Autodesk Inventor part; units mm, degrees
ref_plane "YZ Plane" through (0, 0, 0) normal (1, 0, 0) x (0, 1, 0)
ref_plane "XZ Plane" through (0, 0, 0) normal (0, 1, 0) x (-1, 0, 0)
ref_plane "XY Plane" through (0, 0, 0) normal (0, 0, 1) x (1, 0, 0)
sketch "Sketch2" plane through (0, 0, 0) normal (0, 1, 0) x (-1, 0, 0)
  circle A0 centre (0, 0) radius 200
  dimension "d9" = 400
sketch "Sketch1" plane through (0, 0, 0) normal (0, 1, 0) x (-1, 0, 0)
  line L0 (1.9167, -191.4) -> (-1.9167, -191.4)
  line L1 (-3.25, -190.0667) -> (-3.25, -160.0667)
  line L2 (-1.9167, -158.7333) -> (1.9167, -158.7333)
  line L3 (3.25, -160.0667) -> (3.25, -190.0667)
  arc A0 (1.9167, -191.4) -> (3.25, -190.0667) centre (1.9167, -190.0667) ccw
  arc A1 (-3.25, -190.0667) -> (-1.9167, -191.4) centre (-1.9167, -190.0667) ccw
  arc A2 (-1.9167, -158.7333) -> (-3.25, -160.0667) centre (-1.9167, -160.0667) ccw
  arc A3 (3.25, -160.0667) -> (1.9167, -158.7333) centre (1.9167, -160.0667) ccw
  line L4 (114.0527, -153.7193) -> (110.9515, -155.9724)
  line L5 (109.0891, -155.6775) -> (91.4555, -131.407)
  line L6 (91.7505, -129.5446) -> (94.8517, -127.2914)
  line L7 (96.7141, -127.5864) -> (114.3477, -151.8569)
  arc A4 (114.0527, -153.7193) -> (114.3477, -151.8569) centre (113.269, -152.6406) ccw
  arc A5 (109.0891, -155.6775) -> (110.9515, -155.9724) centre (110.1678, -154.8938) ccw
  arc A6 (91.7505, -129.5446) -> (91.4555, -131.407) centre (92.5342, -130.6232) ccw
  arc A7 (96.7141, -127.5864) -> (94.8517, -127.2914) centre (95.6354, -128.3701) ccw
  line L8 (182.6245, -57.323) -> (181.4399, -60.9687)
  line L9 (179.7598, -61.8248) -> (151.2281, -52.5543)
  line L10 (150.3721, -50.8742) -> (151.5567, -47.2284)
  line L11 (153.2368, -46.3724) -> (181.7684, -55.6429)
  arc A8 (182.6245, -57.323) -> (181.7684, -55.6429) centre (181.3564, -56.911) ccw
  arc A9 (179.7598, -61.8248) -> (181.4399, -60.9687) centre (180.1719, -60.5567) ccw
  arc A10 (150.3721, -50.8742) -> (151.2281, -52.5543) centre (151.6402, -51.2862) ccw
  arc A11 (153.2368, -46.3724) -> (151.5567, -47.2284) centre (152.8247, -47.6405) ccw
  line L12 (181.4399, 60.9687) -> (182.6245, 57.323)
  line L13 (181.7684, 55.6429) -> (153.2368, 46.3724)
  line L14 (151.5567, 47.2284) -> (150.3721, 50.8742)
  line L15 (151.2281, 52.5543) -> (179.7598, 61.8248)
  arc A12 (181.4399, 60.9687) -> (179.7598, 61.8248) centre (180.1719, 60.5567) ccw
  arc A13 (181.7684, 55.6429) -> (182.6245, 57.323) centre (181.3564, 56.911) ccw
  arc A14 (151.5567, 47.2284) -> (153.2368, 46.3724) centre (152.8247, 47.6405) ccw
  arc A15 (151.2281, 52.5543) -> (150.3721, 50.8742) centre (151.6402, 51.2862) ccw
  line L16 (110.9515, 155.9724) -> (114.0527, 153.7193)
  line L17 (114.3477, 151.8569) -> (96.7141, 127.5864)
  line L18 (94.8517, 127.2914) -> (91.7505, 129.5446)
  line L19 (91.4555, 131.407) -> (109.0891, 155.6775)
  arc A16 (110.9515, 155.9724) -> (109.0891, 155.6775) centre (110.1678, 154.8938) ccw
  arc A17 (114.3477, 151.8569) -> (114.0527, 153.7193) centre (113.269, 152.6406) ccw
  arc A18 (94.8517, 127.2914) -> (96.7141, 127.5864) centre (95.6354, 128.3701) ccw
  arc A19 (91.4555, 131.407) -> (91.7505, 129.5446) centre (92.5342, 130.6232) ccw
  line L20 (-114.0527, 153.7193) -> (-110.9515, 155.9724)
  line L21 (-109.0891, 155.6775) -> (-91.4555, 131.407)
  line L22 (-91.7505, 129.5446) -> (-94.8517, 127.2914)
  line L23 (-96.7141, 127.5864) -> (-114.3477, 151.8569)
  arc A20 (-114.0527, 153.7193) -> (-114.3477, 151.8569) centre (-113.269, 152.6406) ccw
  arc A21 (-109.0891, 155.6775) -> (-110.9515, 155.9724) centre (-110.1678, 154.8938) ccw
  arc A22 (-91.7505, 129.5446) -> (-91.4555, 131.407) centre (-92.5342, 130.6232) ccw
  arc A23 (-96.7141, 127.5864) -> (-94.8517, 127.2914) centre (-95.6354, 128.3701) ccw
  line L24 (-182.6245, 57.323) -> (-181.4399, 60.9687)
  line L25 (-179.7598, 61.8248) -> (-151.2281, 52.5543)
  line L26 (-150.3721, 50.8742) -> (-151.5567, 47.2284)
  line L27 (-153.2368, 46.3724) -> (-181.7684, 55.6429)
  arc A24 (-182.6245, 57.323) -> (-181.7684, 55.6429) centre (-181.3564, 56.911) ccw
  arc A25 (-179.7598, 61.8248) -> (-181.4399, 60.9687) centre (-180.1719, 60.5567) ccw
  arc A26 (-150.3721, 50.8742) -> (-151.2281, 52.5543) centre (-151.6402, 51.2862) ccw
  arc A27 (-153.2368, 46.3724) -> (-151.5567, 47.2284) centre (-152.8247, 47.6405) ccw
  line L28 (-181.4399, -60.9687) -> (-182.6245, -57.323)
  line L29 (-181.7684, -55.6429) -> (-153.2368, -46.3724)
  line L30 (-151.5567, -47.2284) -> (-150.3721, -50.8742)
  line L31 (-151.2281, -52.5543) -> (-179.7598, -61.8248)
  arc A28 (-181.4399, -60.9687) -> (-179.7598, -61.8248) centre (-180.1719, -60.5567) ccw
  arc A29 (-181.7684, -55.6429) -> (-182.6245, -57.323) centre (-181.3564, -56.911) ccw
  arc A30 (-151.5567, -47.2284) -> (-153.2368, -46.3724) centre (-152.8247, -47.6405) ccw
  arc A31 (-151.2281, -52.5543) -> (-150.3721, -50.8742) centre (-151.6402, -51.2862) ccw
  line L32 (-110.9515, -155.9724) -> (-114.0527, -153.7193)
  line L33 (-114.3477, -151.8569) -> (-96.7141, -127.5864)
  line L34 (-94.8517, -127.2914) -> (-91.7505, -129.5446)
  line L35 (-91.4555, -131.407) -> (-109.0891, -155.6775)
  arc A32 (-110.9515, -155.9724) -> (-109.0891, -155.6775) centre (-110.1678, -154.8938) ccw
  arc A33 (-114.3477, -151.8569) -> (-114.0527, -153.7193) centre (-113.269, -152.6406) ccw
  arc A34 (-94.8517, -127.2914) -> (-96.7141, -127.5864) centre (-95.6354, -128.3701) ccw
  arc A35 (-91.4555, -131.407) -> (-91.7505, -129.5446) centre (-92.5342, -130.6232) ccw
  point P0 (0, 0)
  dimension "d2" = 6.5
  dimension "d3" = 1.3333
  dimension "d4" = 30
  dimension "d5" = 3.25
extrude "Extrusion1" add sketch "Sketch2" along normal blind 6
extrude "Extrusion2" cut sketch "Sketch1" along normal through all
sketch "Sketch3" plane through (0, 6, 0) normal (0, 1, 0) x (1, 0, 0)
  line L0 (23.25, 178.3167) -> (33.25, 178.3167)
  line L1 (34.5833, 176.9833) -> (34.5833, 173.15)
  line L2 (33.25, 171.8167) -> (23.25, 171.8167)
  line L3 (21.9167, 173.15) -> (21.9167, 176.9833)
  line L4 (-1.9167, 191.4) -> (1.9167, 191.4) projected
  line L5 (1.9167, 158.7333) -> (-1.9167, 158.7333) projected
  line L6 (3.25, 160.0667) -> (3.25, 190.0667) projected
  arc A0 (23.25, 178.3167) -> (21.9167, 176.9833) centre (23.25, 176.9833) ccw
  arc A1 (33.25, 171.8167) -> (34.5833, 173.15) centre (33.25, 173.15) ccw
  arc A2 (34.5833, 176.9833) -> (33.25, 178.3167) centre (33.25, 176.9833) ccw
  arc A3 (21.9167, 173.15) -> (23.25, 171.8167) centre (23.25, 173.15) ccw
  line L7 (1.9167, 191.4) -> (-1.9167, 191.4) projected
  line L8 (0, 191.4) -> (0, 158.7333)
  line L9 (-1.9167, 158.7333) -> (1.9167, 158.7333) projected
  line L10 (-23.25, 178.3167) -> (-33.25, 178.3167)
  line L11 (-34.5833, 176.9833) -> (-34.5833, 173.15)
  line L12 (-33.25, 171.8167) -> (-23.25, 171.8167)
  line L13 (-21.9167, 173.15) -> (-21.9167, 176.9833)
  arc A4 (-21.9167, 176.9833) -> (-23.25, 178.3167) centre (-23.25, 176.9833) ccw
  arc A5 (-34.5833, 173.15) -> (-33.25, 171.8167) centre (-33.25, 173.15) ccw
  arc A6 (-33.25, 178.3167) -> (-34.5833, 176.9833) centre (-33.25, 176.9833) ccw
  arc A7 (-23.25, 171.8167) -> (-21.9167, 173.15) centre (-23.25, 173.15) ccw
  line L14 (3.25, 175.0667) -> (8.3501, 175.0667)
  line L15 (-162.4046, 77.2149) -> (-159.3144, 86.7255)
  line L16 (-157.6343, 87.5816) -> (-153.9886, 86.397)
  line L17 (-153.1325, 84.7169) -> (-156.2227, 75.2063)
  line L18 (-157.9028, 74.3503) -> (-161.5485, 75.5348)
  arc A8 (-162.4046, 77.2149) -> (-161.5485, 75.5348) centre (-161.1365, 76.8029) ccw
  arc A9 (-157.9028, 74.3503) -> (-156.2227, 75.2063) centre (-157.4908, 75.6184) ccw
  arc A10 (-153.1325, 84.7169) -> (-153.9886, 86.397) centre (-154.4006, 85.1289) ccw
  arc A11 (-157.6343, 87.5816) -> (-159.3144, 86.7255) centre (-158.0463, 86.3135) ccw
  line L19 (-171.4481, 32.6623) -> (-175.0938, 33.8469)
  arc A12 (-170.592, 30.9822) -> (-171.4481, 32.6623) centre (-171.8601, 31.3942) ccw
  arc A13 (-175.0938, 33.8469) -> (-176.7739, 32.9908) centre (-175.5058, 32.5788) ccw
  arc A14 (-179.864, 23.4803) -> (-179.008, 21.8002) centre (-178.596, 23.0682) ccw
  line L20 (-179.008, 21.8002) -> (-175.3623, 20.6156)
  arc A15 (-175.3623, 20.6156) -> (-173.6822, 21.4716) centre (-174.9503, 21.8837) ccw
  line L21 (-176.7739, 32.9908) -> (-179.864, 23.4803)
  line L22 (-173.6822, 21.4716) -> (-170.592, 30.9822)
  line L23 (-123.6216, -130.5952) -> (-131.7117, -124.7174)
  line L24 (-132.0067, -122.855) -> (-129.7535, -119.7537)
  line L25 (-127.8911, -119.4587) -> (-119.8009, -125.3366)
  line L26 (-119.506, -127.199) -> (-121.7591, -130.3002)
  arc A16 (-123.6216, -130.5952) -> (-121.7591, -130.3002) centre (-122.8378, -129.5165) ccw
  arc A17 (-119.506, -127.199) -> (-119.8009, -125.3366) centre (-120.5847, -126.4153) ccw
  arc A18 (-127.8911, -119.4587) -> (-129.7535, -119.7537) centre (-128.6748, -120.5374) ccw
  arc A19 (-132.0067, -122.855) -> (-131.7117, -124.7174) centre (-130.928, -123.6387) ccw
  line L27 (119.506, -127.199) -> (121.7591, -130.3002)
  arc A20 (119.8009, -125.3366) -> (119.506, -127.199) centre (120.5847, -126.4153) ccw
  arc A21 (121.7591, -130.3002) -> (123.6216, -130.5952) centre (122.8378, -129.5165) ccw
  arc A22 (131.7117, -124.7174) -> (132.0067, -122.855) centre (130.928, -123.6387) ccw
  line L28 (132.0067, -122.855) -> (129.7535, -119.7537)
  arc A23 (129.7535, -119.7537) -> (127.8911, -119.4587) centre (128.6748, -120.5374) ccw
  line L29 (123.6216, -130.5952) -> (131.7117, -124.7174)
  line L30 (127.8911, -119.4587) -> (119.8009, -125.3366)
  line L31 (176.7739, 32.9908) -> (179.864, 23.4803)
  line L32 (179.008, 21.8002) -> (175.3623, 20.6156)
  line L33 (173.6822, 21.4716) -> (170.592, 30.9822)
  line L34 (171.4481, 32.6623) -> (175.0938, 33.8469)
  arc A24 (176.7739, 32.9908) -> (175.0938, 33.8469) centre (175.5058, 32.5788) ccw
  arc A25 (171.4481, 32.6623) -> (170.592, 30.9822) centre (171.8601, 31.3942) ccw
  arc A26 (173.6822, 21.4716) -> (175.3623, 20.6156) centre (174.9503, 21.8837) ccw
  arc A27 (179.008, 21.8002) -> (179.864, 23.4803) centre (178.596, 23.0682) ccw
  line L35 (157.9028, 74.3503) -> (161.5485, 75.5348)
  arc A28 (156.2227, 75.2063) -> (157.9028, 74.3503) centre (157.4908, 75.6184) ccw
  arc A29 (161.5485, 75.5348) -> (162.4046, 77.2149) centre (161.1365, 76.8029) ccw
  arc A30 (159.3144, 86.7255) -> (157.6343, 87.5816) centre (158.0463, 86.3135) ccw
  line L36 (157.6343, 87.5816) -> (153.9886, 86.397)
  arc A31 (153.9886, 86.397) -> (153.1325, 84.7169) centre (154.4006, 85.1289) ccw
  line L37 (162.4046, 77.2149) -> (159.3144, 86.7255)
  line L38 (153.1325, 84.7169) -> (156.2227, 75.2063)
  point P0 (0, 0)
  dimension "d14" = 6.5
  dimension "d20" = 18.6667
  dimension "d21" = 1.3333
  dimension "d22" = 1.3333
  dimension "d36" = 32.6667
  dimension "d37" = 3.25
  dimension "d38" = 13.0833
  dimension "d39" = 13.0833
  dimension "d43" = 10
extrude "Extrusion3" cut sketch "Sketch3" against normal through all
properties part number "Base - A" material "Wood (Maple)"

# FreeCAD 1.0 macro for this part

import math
import FreeCAD as App
import Part
import Sketcher
from FreeCAD import Vector
Q = App.Units.Quantity

doc = App.newDocument("Part")
body = doc.addObject("PartDesign::Body", "Body")

sketch1 = doc.addObject("Sketcher::SketchObject", "Sketch")
body.addObject(sketch1)
sketch1.AttachmentSupport = (doc.XZ_Plane, [""])
sketch1.MapMode = "FlatFace"
sketch1.addGeometry(Part.Circle(Vector(0, 0, 0), Vector(0, 0, 1), 200), False)
sketch1.addConstraint([
    Sketcher.Constraint("Coincident", 0, 3, -1, 1),
    Sketcher.Constraint("Diameter", 0, Q("400 mm")),
])
pad1 = doc.addObject("PartDesign::Pad", "Pad")
body.addObject(pad1)
pad1.Profile = sketch1
pad1.Length = 6
pad1.Reversed = True

sketch2 = doc.addObject("Sketcher::SketchObject", "Sketch001")
body.addObject(sketch2)
sketch2.AttachmentSupport = (doc.XZ_Plane, [""])
sketch2.MapMode = "FlatFace"
sketch2.addGeometry([
    Part.LineSegment(Vector(1.9, -191.4, 0), Vector(-1.9, -191.4, 0)),
    Part.ArcOfCircle(Part.Circle(Vector(-1.9, -190.1, 0), Vector(0, 0, 1), 1.3), math.radians(180), math.radians(270)),
    Part.LineSegment(Vector(-3.2, -190.1, 0), Vector(-3.2, -160.1, 0)),
    Part.ArcOfCircle(Part.Circle(Vector(-1.9, -160.1, 0), Vector(0, 0, 1), 1.3), math.radians(90), math.radians(180)),
    Part.LineSegment(Vector(-1.9, -158.7, 0), Vector(1.9, -158.7, 0)),
    Part.ArcOfCircle(Part.Circle(Vector(1.9, -160.1, 0), Vector(0, 0, 1), 1.3), math.radians(0), math.radians(90)),
    Part.LineSegment(Vector(3.2, -160.1, 0), Vector(3.2, -190.1, 0)),
    Part.ArcOfCircle(Part.Circle(Vector(1.9, -190.1, 0), Vector(0, 0, 1), 1.3), math.radians(-90), math.radians(0)),
    Part.LineSegment(Vector(-111, -156, 0), Vector(-114.1, -153.7, 0)),
    Part.ArcOfCircle(Part.Circle(Vector(-113.3, -152.6, 0), Vector(0, 0, 1), 1.3), math.radians(144), math.radians(234)),
    Part.LineSegment(Vector(-114.3, -151.9, 0), Vector(-96.7, -127.6, 0)),
    Part.ArcOfCircle(Part.Circle(Vector(-95.6, -128.4, 0), Vector(0, 0, 1), 1.3), math.radians(54), math.radians(144)),
    Part.LineSegment(Vector(-94.9, -127.3, 0), Vector(-91.8, -129.5, 0)),
    Part.ArcOfCircle(Part.Circle(Vector(-92.5, -130.6, 0), Vector(0, 0, 1), 1.3), math.radians(-36), math.radians(54)),
    Part.LineSegment(Vector(-91.5, -131.4, 0), Vector(-109.1, -155.7, 0)),
    Part.ArcOfCircle(Part.Circle(Vector(-110.2, -154.9, 0), Vector(0, 0, 1), 1.3), math.radians(-126), math.radians(-36)),
    Part.LineSegment(Vector(-181.4, -61, 0), Vector(-182.6, -57.3, 0)),
    Part.ArcOfCircle(Part.Circle(Vector(-181.4, -56.9, 0), Vector(0, 0, 1), 1.3), math.radians(108), math.radians(198)),
    Part.LineSegment(Vector(-181.8, -55.6, 0), Vector(-153.2, -46.4, 0)),
    Part.ArcOfCircle(Part.Circle(Vector(-152.8, -47.6, 0), Vector(0, 0, 1), 1.3), math.radians(18), math.radians(108)),
    Part.LineSegment(Vector(-151.6, -47.2, 0), Vector(-150.4, -50.9, 0)),
    Part.ArcOfCircle(Part.Circle(Vector(-151.6, -51.3, 0), Vector(0, 0, 1), 1.3), math.radians(-72), math.radians(18)),
    Part.LineSegment(Vector(-151.2, -52.6, 0), Vector(-179.8, -61.8, 0)),
    Part.ArcOfCircle(Part.Circle(Vector(-180.2, -60.6, 0), Vector(0, 0, 1), 1.3), math.radians(-162), math.radians(-72)),
    Part.LineSegment(Vector(-182.6, 57.3, 0), Vector(-181.4, 61, 0)),
    Part.ArcOfCircle(Part.Circle(Vector(-180.2, 60.6, 0), Vector(0, 0, 1), 1.3), math.radians(72), math.radians(162)),
    Part.LineSegment(Vector(-179.8, 61.8, 0), Vector(-151.2, 52.6, 0)),
    Part.ArcOfCircle(Part.Circle(Vector(-151.6, 51.3, 0), Vector(0, 0, 1), 1.3), math.radians(-18), math.radians(72)),
    Part.LineSegment(Vector(-150.4, 50.9, 0), Vector(-151.6, 47.2, 0)),
    Part.ArcOfCircle(Part.Circle(Vector(-152.8, 47.6, 0), Vector(0, 0, 1), 1.3), math.radians(-108), math.radians(-18)),
    Part.LineSegment(Vector(-153.2, 46.4, 0), Vector(-181.8, 55.6, 0)),
    Part.ArcOfCircle(Part.Circle(Vector(-181.4, 56.9, 0), Vector(0, 0, 1), 1.3), math.radians(162), math.radians(252)),
    Part.LineSegment(Vector(-114.1, 153.7, 0), Vector(-111, 156, 0)),
    Part.ArcOfCircle(Part.Circle(Vector(-110.2, 154.9, 0), Vector(0, 0, 1), 1.3), math.radians(36), math.radians(126)),
    Part.LineSegment(Vector(-109.1, 155.7, 0), Vector(-91.5, 131.4, 0)),
    Part.ArcOfCircle(Part.Circle(Vector(-92.5, 130.6, 0), Vector(0, 0, 1), 1.3), math.radians(-54), math.radians(36)),
    Part.LineSegment(Vector(-91.8, 129.5, 0), Vector(-94.9, 127.3, 0)),
    Part.ArcOfCircle(Part.Circle(Vector(-95.6, 128.4, 0), Vector(0, 0, 1), 1.3), math.radians(-144), math.radians(-54)),
    Part.LineSegment(Vector(-96.7, 127.6, 0), Vector(-114.3, 151.9, 0)),
    Part.ArcOfCircle(Part.Circle(Vector(-113.3, 152.6, 0), Vector(0, 0, 1), 1.3), math.radians(126), math.radians(216)),
    Part.LineSegment(Vector(111, 156, 0), Vector(114.1, 153.7, 0)),
    Part.ArcOfCircle(Part.Circle(Vector(113.3, 152.6, 0), Vector(0, 0, 1), 1.3), math.radians(-36), math.radians(54)),
    Part.LineSegment(Vector(114.3, 151.9, 0), Vector(96.7, 127.6, 0)),
    Part.ArcOfCircle(Part.Circle(Vector(95.6, 128.4, 0), Vector(0, 0, 1), 1.3), math.radians(-126), math.radians(-36)),
    Part.LineSegment(Vector(94.9, 127.3, 0), Vector(91.8, 129.5, 0)),
    Part.ArcOfCircle(Part.Circle(Vector(92.5, 130.6, 0), Vector(0, 0, 1), 1.3), math.radians(144), math.radians(234)),
    Part.LineSegment(Vector(91.5, 131.4, 0), Vector(109.1, 155.7, 0)),
    Part.ArcOfCircle(Part.Circle(Vector(110.2, 154.9, 0), Vector(0, 0, 1), 1.3), math.radians(54), math.radians(144)),
    Part.LineSegment(Vector(181.4, 61, 0), Vector(182.6, 57.3, 0)),
    Part.ArcOfCircle(Part.Circle(Vector(181.4, 56.9, 0), Vector(0, 0, 1), 1.3), math.radians(-72), math.radians(18)),
    Part.LineSegment(Vector(181.8, 55.6, 0), Vector(153.2, 46.4, 0)),
    Part.ArcOfCircle(Part.Circle(Vector(152.8, 47.6, 0), Vector(0, 0, 1), 1.3), math.radians(-162), math.radians(-72)),
    Part.LineSegment(Vector(151.6, 47.2, 0), Vector(150.4, 50.9, 0)),
    Part.ArcOfCircle(Part.Circle(Vector(151.6, 51.3, 0), Vector(0, 0, 1), 1.3), math.radians(108), math.radians(198)),
    Part.LineSegment(Vector(151.2, 52.6, 0), Vector(179.8, 61.8, 0)),
    Part.ArcOfCircle(Part.Circle(Vector(180.2, 60.6, 0), Vector(0, 0, 1), 1.3), math.radians(18), math.radians(108)),
    Part.LineSegment(Vector(182.6, -57.3, 0), Vector(181.4, -61, 0)),
    Part.ArcOfCircle(Part.Circle(Vector(180.2, -60.6, 0), Vector(0, 0, 1), 1.3), math.radians(-108), math.radians(-18)),
    Part.LineSegment(Vector(179.8, -61.8, 0), Vector(151.2, -52.6, 0)),
    Part.ArcOfCircle(Part.Circle(Vector(151.6, -51.3, 0), Vector(0, 0, 1), 1.3), math.radians(162), math.radians(252)),
    Part.LineSegment(Vector(150.4, -50.9, 0), Vector(151.6, -47.2, 0)),
    Part.ArcOfCircle(Part.Circle(Vector(152.8, -47.6, 0), Vector(0, 0, 1), 1.3), math.radians(72), math.radians(162)),
    Part.LineSegment(Vector(153.2, -46.4, 0), Vector(181.8, -55.6, 0)),
    Part.ArcOfCircle(Part.Circle(Vector(181.4, -56.9, 0), Vector(0, 0, 1), 1.3), math.radians(-18), math.radians(72)),
    Part.LineSegment(Vector(114.1, -153.7, 0), Vector(111, -156, 0)),
    Part.ArcOfCircle(Part.Circle(Vector(110.2, -154.9, 0), Vector(0, 0, 1), 1.3), math.radians(-144), math.radians(-54)),
    Part.LineSegment(Vector(109.1, -155.7, 0), Vector(91.5, -131.4, 0)),
    Part.ArcOfCircle(Part.Circle(Vector(92.5, -130.6, 0), Vector(0, 0, 1), 1.3), math.radians(126), math.radians(216)),
    Part.LineSegment(Vector(91.8, -129.5, 0), Vector(94.9, -127.3, 0)),
    Part.ArcOfCircle(Part.Circle(Vector(95.6, -128.4, 0), Vector(0, 0, 1), 1.3), math.radians(36), math.radians(126)),
    Part.LineSegment(Vector(96.7, -127.6, 0), Vector(114.3, -151.9, 0)),
    Part.ArcOfCircle(Part.Circle(Vector(113.3, -152.6, 0), Vector(0, 0, 1), 1.3), math.radians(-54), math.radians(36)),
], False)
sketch2.addConstraint([
    Sketcher.Constraint("Tangent", 0, 2, 1, 2),
    Sketcher.Constraint("Tangent", 1, 1, 2, 1),
    Sketcher.Constraint("Tangent", 2, 2, 3, 2),
    Sketcher.Constraint("Tangent", 3, 1, 4, 1),
    Sketcher.Constraint("Tangent", 4, 2, 5, 2),
    Sketcher.Constraint("Tangent", 5, 1, 6, 1),
    Sketcher.Constraint("Tangent", 6, 2, 7, 2),
    Sketcher.Constraint("Tangent", 7, 1, 0, 1),
    Sketcher.Constraint("Tangent", 8, 2, 9, 2),
    Sketcher.Constraint("Tangent", 9, 1, 10, 1),
    Sketcher.Constraint("Tangent", 10, 2, 11, 2),
    Sketcher.Constraint("Tangent", 11, 1, 12, 1),
    Sketcher.Constraint("Tangent", 12, 2, 13, 2),
    Sketcher.Constraint("Tangent", 13, 1, 14, 1),
    Sketcher.Constraint("Tangent", 14, 2, 15, 2),
    Sketcher.Constraint("Tangent", 15, 1, 8, 1),
    Sketcher.Constraint("Tangent", 16, 2, 17, 2),
    Sketcher.Constraint("Tangent", 17, 1, 18, 1),
    Sketcher.Constraint("Tangent", 18, 2, 19, 2),
    Sketcher.Constraint("Tangent", 19, 1, 20, 1),
    Sketcher.Constraint("Tangent", 20, 2, 21, 2),
    Sketcher.Constraint("Tangent", 21, 1, 22, 1),
    Sketcher.Constraint("Tangent", 22, 2, 23, 2),
    Sketcher.Constraint("Tangent", 23, 1, 16, 1),
    Sketcher.Constraint("Tangent", 24, 2, 25, 2),
    Sketcher.Constraint("Tangent", 25, 1, 26, 1),
    Sketcher.Constraint("Tangent", 26, 2, 27, 2),
    Sketcher.Constraint("Tangent", 27, 1, 28, 1),
    Sketcher.Constraint("Tangent", 28, 2, 29, 2),
    Sketcher.Constraint("Tangent", 29, 1, 30, 1),
    Sketcher.Constraint("Tangent", 30, 2, 31, 2),
    Sketcher.Constraint("Tangent", 31, 1, 24, 1),
    Sketcher.Constraint("Tangent", 32, 2, 33, 2),
    Sketcher.Constraint("Tangent", 33, 1, 34, 1),
    Sketcher.Constraint("Tangent", 34, 2, 35, 2),
    Sketcher.Constraint("Tangent", 35, 1, 36, 1),
    Sketcher.Constraint("Tangent", 36, 2, 37, 2),
    Sketcher.Constraint("Tangent", 37, 1, 38, 1),
    Sketcher.Constraint("Tangent", 38, 2, 39, 2),
    Sketcher.Constraint("Tangent", 39, 1, 32, 1),
    Sketcher.Constraint("Tangent", 40, 2, 41, 2),
    Sketcher.Constraint("Tangent", 41, 1, 42, 1),
    Sketcher.Constraint("Tangent", 42, 2, 43, 2),
    Sketcher.Constraint("Tangent", 43, 1, 44, 1),
    Sketcher.Constraint("Tangent", 44, 2, 45, 2),
    Sketcher.Constraint("Tangent", 45, 1, 46, 1),
    Sketcher.Constraint("Tangent", 46, 2, 47, 2),
    Sketcher.Constraint("Tangent", 47, 1, 40, 1),
    Sketcher.Constraint("Tangent", 48, 2, 49, 2),
    Sketcher.Constraint("Tangent", 49, 1, 50, 1),
    Sketcher.Constraint("Tangent", 50, 2, 51, 2),
    Sketcher.Constraint("Tangent", 51, 1, 52, 1),
    Sketcher.Constraint("Tangent", 52, 2, 53, 2),
    Sketcher.Constraint("Tangent", 53, 1, 54, 1),
    Sketcher.Constraint("Tangent", 54, 2, 55, 2),
    Sketcher.Constraint("Tangent", 55, 1, 48, 1),
    Sketcher.Constraint("Tangent", 56, 2, 57, 2),
    Sketcher.Constraint("Tangent", 57, 1, 58, 1),
    Sketcher.Constraint("Tangent", 58, 2, 59, 2),
    Sketcher.Constraint("Tangent", 59, 1, 60, 1),
    Sketcher.Constraint("Tangent", 60, 2, 61, 2),
    Sketcher.Constraint("Tangent", 61, 1, 62, 1),
    Sketcher.Constraint("Tangent", 62, 2, 63, 2),
    Sketcher.Constraint("Tangent", 63, 1, 56, 1),
    Sketcher.Constraint("Tangent", 64, 2, 65, 2),
    Sketcher.Constraint("Tangent", 65, 1, 66, 1),
    Sketcher.Constraint("Tangent", 66, 2, 67, 2),
    Sketcher.Constraint("Tangent", 67, 1, 68, 1),
    Sketcher.Constraint("Tangent", 68, 2, 69, 2),
    Sketcher.Constraint("Tangent", 69, 1, 70, 1),
    Sketcher.Constraint("Tangent", 70, 2, 71, 2),
    Sketcher.Constraint("Tangent", 71, 1, 64, 1),
    Sketcher.Constraint("Horizontal", 0),
    Sketcher.Constraint("Vertical", 2),
    Sketcher.Constraint("Horizontal", 4),
    Sketcher.Constraint("Vertical", 6),
    Sketcher.Constraint("Equal", 1, 3),
    Sketcher.Constraint("Equal", 3, 5),
    Sketcher.Constraint("Equal", 5, 7),
    Sketcher.Constraint("Equal", 7, 9),
    Sketcher.Constraint("Equal", 9, 11),
    Sketcher.Constraint("Equal", 11, 13),
    Sketcher.Constraint("Equal", 13, 15),
    Sketcher.Constraint("Equal", 15, 17),
    Sketcher.Constraint("Equal", 17, 19),
    Sketcher.Constraint("Equal", 19, 21),
    Sketcher.Constraint("Equal", 21, 23),
    Sketcher.Constraint("Equal", 23, 25),
    Sketcher.Constraint("Equal", 25, 27),
    Sketcher.Constraint("Equal", 27, 29),
    Sketcher.Constraint("Equal", 29, 31),
    Sketcher.Constraint("Equal", 31, 33),
    Sketcher.Constraint("Equal", 33, 35),
    Sketcher.Constraint("Equal", 35, 37),
    Sketcher.Constraint("Equal", 37, 39),
    Sketcher.Constraint("Equal", 39, 41),
    Sketcher.Constraint("Equal", 41, 43),
    Sketcher.Constraint("Equal", 43, 45),
    Sketcher.Constraint("Equal", 45, 47),
    Sketcher.Constraint("Equal", 47, 49),
    Sketcher.Constraint("Equal", 49, 51),
    Sketcher.Constraint("Equal", 51, 53),
    Sketcher.Constraint("Equal", 53, 55),
    Sketcher.Constraint("Equal", 55, 57),
    Sketcher.Constraint("Equal", 57, 59),
    Sketcher.Constraint("Equal", 59, 61),
    Sketcher.Constraint("Equal", 61, 63),
    Sketcher.Constraint("Equal", 63, 65),
    Sketcher.Constraint("Equal", 65, 67),
    Sketcher.Constraint("Equal", 67, 69),
    Sketcher.Constraint("Equal", 69, 71),
    Sketcher.Constraint("Symmetric", 9, 3, 41, 3, -1, 1),
    Sketcher.Constraint("Symmetric", 11, 3, 43, 3, -1, 1),
    Sketcher.Constraint("Symmetric", 13, 3, 45, 3, -1, 1),
    Sketcher.Constraint("Symmetric", 15, 3, 47, 3, -1, 1),
    Sketcher.Constraint("Symmetric", 17, 3, 49, 3, -1, 1),
    Sketcher.Constraint("Symmetric", 19, 3, 51, 3, -1, 1),
    Sketcher.Constraint("Symmetric", 21, 3, 53, 3, -1, 1),
    Sketcher.Constraint("Symmetric", 23, 3, 55, 3, -1, 1),
    Sketcher.Constraint("Symmetric", 25, 3, 57, 3, -1, 1),
    Sketcher.Constraint("Symmetric", 27, 3, 59, 3, -1, 1),
    Sketcher.Constraint("Symmetric", 29, 3, 61, 3, -1, 1),
    Sketcher.Constraint("Symmetric", 31, 3, 63, 3, -1, 1),
    Sketcher.Constraint("Symmetric", 33, 3, 65, 3, -1, 1),
    Sketcher.Constraint("Symmetric", 35, 3, 67, 3, -1, 1),
    Sketcher.Constraint("Symmetric", 37, 3, 69, 3, -1, 1),
    Sketcher.Constraint("Symmetric", 39, 3, 71, 3, -1, 1),
    Sketcher.Constraint("Symmetric", 39, 3, 41, 3, -2),
    Sketcher.Constraint("Symmetric", 37, 3, 43, 3, -2),
    Sketcher.Constraint("Symmetric", 35, 3, 45, 3, -2),
    Sketcher.Constraint("Symmetric", 33, 3, 47, 3, -2),
    Sketcher.Constraint("Symmetric", 31, 3, 49, 3, -2),
    Sketcher.Constraint("Symmetric", 29, 3, 51, 3, -2),
    Sketcher.Constraint("Symmetric", 27, 3, 53, 3, -2),
    Sketcher.Constraint("Symmetric", 25, 3, 55, 3, -2),
    Sketcher.Constraint("Perpendicular", 8, 10),
    Sketcher.Constraint("Perpendicular", 10, 12),
    Sketcher.Constraint("Perpendicular", 12, 14),
    Sketcher.Constraint("Perpendicular", 16, 18),
    Sketcher.Constraint("Perpendicular", 18, 20),
    Sketcher.Constraint("Perpendicular", 20, 22),
    Sketcher.Constraint("Equal", 12, 16),
    Sketcher.Constraint("Equal", 14, 18),
    Sketcher.Constraint("Radius", 1, Q("0.0525 in")),
    Sketcher.Constraint("DistanceY", 2, 1, 2, 2, Q("1.1811 in")),
    Sketcher.Constraint("Angle", 8, Q("144.0006 deg")),
    Sketcher.Constraint("Angle", 16, Q("108.0006 deg")),
    Sketcher.Constraint("Distance", 10, Q("1.1811 in")),
    Sketcher.Constraint("DistanceX", 1, 1, -1, 1, Q("3.25 mm")),
    Sketcher.Constraint("DistanceX", -1, 1, 5, 1, Q("3.25 mm")),
    Sketcher.Constraint("DistanceX", 9, 3, -1, 1, Q("4.4594 in")),
    Sketcher.Constraint("DistanceY", 17, 3, -1, 1, Q("2.2406 in")),
    Sketcher.Constraint("DistanceY", 13, 1, -1, 1, Q("5.1735 in")),
    Sketcher.Constraint("DistanceX", 19, 1, -1, 1, Q("5.9668 in")),
    Sketcher.Constraint("DistanceX", 23, 1, -1, 1, Q("7.1433 in")),
    Sketcher.Constraint("DistanceY", 1, 3, -1, 1, Q("190.0667 mm")),
])
pocket1 = doc.addObject("PartDesign::Pocket", "Pocket")
body.addObject(pocket1)
pocket1.Profile = sketch2
pocket1.Type = "ThroughAll"

sketch3 = doc.addObject("Sketcher::SketchObject", "Sketch002")
body.addObject(sketch3)
sketch3.AttachmentSupport = (doc.XZ_Plane, [""])
sketch3.MapMode = "FlatFace"
sketch3.AttachmentOffset = App.Placement(Vector(0, 0, -6), App.Rotation())
sketch3.addGeometry([
    Part.LineSegment(Vector(33.2, -178.3, 0), Vector(23.2, -178.3, 0)),
    Part.ArcOfCircle(Part.Circle(Vector(23.2, -177, 0), Vector(0, 0, 1), 1.3), math.radians(180), math.radians(270)),
    Part.LineSegment(Vector(21.9, -177, 0), Vector(21.9, -173.2, 0)),
    Part.ArcOfCircle(Part.Circle(Vector(23.2, -173.2, 0), Vector(0, 0, 1), 1.3), math.radians(90), math.radians(180)),
    Part.LineSegment(Vector(23.2, -171.8, 0), Vector(33.2, -171.8, 0)),
    Part.ArcOfCircle(Part.Circle(Vector(33.2, -173.2, 0), Vector(0, 0, 1), 1.3), math.radians(0), math.radians(90)),
    Part.LineSegment(Vector(34.6, -173.2, 0), Vector(34.6, -177, 0)),
    Part.ArcOfCircle(Part.Circle(Vector(33.2, -177, 0), Vector(0, 0, 1), 1.3), math.radians(-90), math.radians(0)),
    Part.ArcOfCircle(Part.Circle(Vector(-23.2, -177, 0), Vector(0, 0, 1), 1.3), math.radians(-90), math.radians(0)),
    Part.LineSegment(Vector(-23.2, -178.3, 0), Vector(-33.2, -178.3, 0)),
    Part.ArcOfCircle(Part.Circle(Vector(-33.2, -177, 0), Vector(0, 0, 1), 1.3), math.radians(180), math.radians(270)),
    Part.LineSegment(Vector(-34.6, -177, 0), Vector(-34.6, -173.2, 0)),
    Part.ArcOfCircle(Part.Circle(Vector(-33.2, -173.2, 0), Vector(0, 0, 1), 1.3), math.radians(90), math.radians(180)),
    Part.LineSegment(Vector(-33.2, -171.8, 0), Vector(-23.2, -171.8, 0)),
    Part.ArcOfCircle(Part.Circle(Vector(-23.2, -173.2, 0), Vector(0, 0, 1), 1.3), math.radians(0), math.radians(90)),
    Part.LineSegment(Vector(-21.9, -173.2, 0), Vector(-21.9, -177, 0)),
    Part.LineSegment(Vector(-159.3, -86.7, 0), Vector(-162.4, -77.2, 0)),
    Part.ArcOfCircle(Part.Circle(Vector(-161.1, -76.8, 0), Vector(0, 0, 1), 1.3), math.radians(108), math.radians(198)),
    Part.LineSegment(Vector(-161.5, -75.5, 0), Vector(-157.9, -74.4, 0)),
    Part.ArcOfCircle(Part.Circle(Vector(-157.5, -75.6, 0), Vector(0, 0, 1), 1.3), math.radians(18), math.radians(108)),
    Part.LineSegment(Vector(-156.2, -75.2, 0), Vector(-153.1, -84.7, 0)),
    Part.ArcOfCircle(Part.Circle(Vector(-154.4, -85.1, 0), Vector(0, 0, 1), 1.3), math.radians(-72), math.radians(18)),
    Part.LineSegment(Vector(-154, -86.4, 0), Vector(-157.6, -87.6, 0)),
    Part.ArcOfCircle(Part.Circle(Vector(-158, -86.3, 0), Vector(0, 0, 1), 1.3), math.radians(-162), math.radians(-72)),
    Part.ArcOfCircle(Part.Circle(Vector(-171.9, -31.4, 0), Vector(0, 0, 1), 1.3), math.radians(-72), math.radians(18)),
    Part.LineSegment(Vector(-171.4, -32.7, 0), Vector(-175.1, -33.8, 0)),
    Part.ArcOfCircle(Part.Circle(Vector(-175.5, -32.6, 0), Vector(0, 0, 1), 1.3), math.radians(-162), math.radians(-72)),
    Part.LineSegment(Vector(-176.8, -33, 0), Vector(-179.9, -23.5, 0)),
    Part.ArcOfCircle(Part.Circle(Vector(-178.6, -23.1, 0), Vector(0, 0, 1), 1.3), math.radians(108), math.radians(198)),
    Part.LineSegment(Vector(-179, -21.8, 0), Vector(-175.4, -20.6, 0)),
    Part.ArcOfCircle(Part.Circle(Vector(-175, -21.9, 0), Vector(0, 0, 1), 1.3), math.radians(18), math.radians(108)),
    Part.LineSegment(Vector(-173.7, -21.5, 0), Vector(-170.6, -31, 0)),
    Part.LineSegment(Vector(-131.7, 124.7, 0), Vector(-123.6, 130.6, 0)),
    Part.ArcOfCircle(Part.Circle(Vector(-122.8, 129.5, 0), Vector(0, 0, 1), 1.3), math.radians(36), math.radians(126)),
    Part.LineSegment(Vector(-121.8, 130.3, 0), Vector(-119.5, 127.2, 0)),
    Part.ArcOfCircle(Part.Circle(Vector(-120.6, 126.4, 0), Vector(0, 0, 1), 1.3), math.radians(-54), math.radians(36)),
    Part.LineSegment(Vector(-119.8, 125.3, 0), Vector(-127.9, 119.5, 0)),
    Part.ArcOfCircle(Part.Circle(Vector(-128.7, 120.5, 0), Vector(0, 0, 1), 1.3), math.radians(-144), math.radians(-54)),
    Part.LineSegment(Vector(-129.8, 119.8, 0), Vector(-132, 122.9, 0)),
    Part.ArcOfCircle(Part.Circle(Vector(-130.9, 123.6, 0), Vector(0, 0, 1), 1.3), math.radians(126), math.radians(216)),
    Part.ArcOfCircle(Part.Circle(Vector(120.6, 126.4, 0), Vector(0, 0, 1), 1.3), math.radians(144), math.radians(234)),
    Part.LineSegment(Vector(119.5, 127.2, 0), Vector(121.8, 130.3, 0)),
    Part.ArcOfCircle(Part.Circle(Vector(122.8, 129.5, 0), Vector(0, 0, 1), 1.3), math.radians(54), math.radians(144)),
    Part.LineSegment(Vector(123.6, 130.6, 0), Vector(131.7, 124.7, 0)),
    Part.ArcOfCircle(Part.Circle(Vector(130.9, 123.6, 0), Vector(0, 0, 1), 1.3), math.radians(-36), math.radians(54)),
    Part.LineSegment(Vector(132, 122.9, 0), Vector(129.8, 119.8, 0)),
    Part.ArcOfCircle(Part.Circle(Vector(128.7, 120.5, 0), Vector(0, 0, 1), 1.3), math.radians(-126), math.radians(-36)),
    Part.LineSegment(Vector(127.9, 119.5, 0), Vector(119.8, 125.3, 0)),
    Part.LineSegment(Vector(179.9, -23.5, 0), Vector(176.8, -33, 0)),
    Part.ArcOfCircle(Part.Circle(Vector(175.5, -32.6, 0), Vector(0, 0, 1), 1.3), math.radians(-108), math.radians(-18)),
    Part.LineSegment(Vector(175.1, -33.8, 0), Vector(171.4, -32.7, 0)),
    Part.ArcOfCircle(Part.Circle(Vector(171.9, -31.4, 0), Vector(0, 0, 1), 1.3), math.radians(162), math.radians(252)),
    Part.LineSegment(Vector(170.6, -31, 0), Vector(173.7, -21.5, 0)),
    Part.ArcOfCircle(Part.Circle(Vector(175, -21.9, 0), Vector(0, 0, 1), 1.3), math.radians(72), math.radians(162)),
    Part.LineSegment(Vector(175.4, -20.6, 0), Vector(179, -21.8, 0)),
    Part.ArcOfCircle(Part.Circle(Vector(178.6, -23.1, 0), Vector(0, 0, 1), 1.3), math.radians(-18), math.radians(72)),
    Part.ArcOfCircle(Part.Circle(Vector(157.5, -75.6, 0), Vector(0, 0, 1), 1.3), math.radians(72), math.radians(162)),
    Part.LineSegment(Vector(157.9, -74.4, 0), Vector(161.5, -75.5, 0)),
    Part.ArcOfCircle(Part.Circle(Vector(161.1, -76.8, 0), Vector(0, 0, 1), 1.3), math.radians(-18), math.radians(72)),
    Part.LineSegment(Vector(162.4, -77.2, 0), Vector(159.3, -86.7, 0)),
    Part.ArcOfCircle(Part.Circle(Vector(158, -86.3, 0), Vector(0, 0, 1), 1.3), math.radians(-108), math.radians(-18)),
    Part.LineSegment(Vector(157.6, -87.6, 0), Vector(154, -86.4, 0)),
    Part.ArcOfCircle(Part.Circle(Vector(154.4, -85.1, 0), Vector(0, 0, 1), 1.3), math.radians(162), math.radians(252)),
    Part.LineSegment(Vector(153.1, -84.7, 0), Vector(156.2, -75.2, 0)),
], False)
sketch3.addConstraint([
    Sketcher.Constraint("Tangent", 0, 2, 1, 2),
    Sketcher.Constraint("Tangent", 1, 1, 2, 1),
    Sketcher.Constraint("Tangent", 2, 2, 3, 2),
    Sketcher.Constraint("Tangent", 3, 1, 4, 1),
    Sketcher.Constraint("Tangent", 4, 2, 5, 2),
    Sketcher.Constraint("Tangent", 5, 1, 6, 1),
    Sketcher.Constraint("Tangent", 6, 2, 7, 2),
    Sketcher.Constraint("Tangent", 7, 1, 0, 1),
    Sketcher.Constraint("Tangent", 8, 1, 9, 1),
    Sketcher.Constraint("Tangent", 9, 2, 10, 2),
    Sketcher.Constraint("Tangent", 10, 1, 11, 1),
    Sketcher.Constraint("Tangent", 11, 2, 12, 2),
    Sketcher.Constraint("Tangent", 12, 1, 13, 1),
    Sketcher.Constraint("Tangent", 13, 2, 14, 2),
    Sketcher.Constraint("Tangent", 14, 1, 15, 1),
    Sketcher.Constraint("Tangent", 15, 2, 8, 2),
    Sketcher.Constraint("Tangent", 16, 2, 17, 2),
    Sketcher.Constraint("Tangent", 17, 1, 18, 1),
    Sketcher.Constraint("Tangent", 18, 2, 19, 2),
    Sketcher.Constraint("Tangent", 19, 1, 20, 1),
    Sketcher.Constraint("Tangent", 20, 2, 21, 2),
    Sketcher.Constraint("Tangent", 21, 1, 22, 1),
    Sketcher.Constraint("Tangent", 22, 2, 23, 2),
    Sketcher.Constraint("Tangent", 23, 1, 16, 1),
    Sketcher.Constraint("Tangent", 24, 1, 25, 1),
    Sketcher.Constraint("Tangent", 25, 2, 26, 2),
    Sketcher.Constraint("Tangent", 26, 1, 27, 1),
    Sketcher.Constraint("Tangent", 27, 2, 28, 2),
    Sketcher.Constraint("Tangent", 28, 1, 29, 1),
    Sketcher.Constraint("Tangent", 29, 2, 30, 2),
    Sketcher.Constraint("Tangent", 30, 1, 31, 1),
    Sketcher.Constraint("Tangent", 31, 2, 24, 2),
    Sketcher.Constraint("Tangent", 32, 2, 33, 2),
    Sketcher.Constraint("Tangent", 33, 1, 34, 1),
    Sketcher.Constraint("Tangent", 34, 2, 35, 2),
    Sketcher.Constraint("Tangent", 35, 1, 36, 1),
    Sketcher.Constraint("Tangent", 36, 2, 37, 2),
    Sketcher.Constraint("Tangent", 37, 1, 38, 1),
    Sketcher.Constraint("Tangent", 38, 2, 39, 2),
    Sketcher.Constraint("Tangent", 39, 1, 32, 1),
    Sketcher.Constraint("Tangent", 40, 1, 41, 1),
    Sketcher.Constraint("Tangent", 41, 2, 42, 2),
    Sketcher.Constraint("Tangent", 42, 1, 43, 1),
    Sketcher.Constraint("Tangent", 43, 2, 44, 2),
    Sketcher.Constraint("Tangent", 44, 1, 45, 1),
    Sketcher.Constraint("Tangent", 45, 2, 46, 2),
    Sketcher.Constraint("Tangent", 46, 1, 47, 1),
    Sketcher.Constraint("Tangent", 47, 2, 40, 2),
    Sketcher.Constraint("Tangent", 48, 2, 49, 2),
    Sketcher.Constraint("Tangent", 49, 1, 50, 1),
    Sketcher.Constraint("Tangent", 50, 2, 51, 2),
    Sketcher.Constraint("Tangent", 51, 1, 52, 1),
    Sketcher.Constraint("Tangent", 52, 2, 53, 2),
    Sketcher.Constraint("Tangent", 53, 1, 54, 1),
    Sketcher.Constraint("Tangent", 54, 2, 55, 2),
    Sketcher.Constraint("Tangent", 55, 1, 48, 1),
    Sketcher.Constraint("Tangent", 56, 1, 57, 1),
    Sketcher.Constraint("Tangent", 57, 2, 58, 2),
    Sketcher.Constraint("Tangent", 58, 1, 59, 1),
    Sketcher.Constraint("Tangent", 59, 2, 60, 2),
    Sketcher.Constraint("Tangent", 60, 1, 61, 1),
    Sketcher.Constraint("Tangent", 61, 2, 62, 2),
    Sketcher.Constraint("Tangent", 62, 1, 63, 1),
    Sketcher.Constraint("Tangent", 63, 2, 56, 2),
    Sketcher.Constraint("Horizontal", 0),
    Sketcher.Constraint("Vertical", 2),
    Sketcher.Constraint("Horizontal", 4),
    Sketcher.Constraint("Vertical", 6),
    Sketcher.Constraint("Horizontal", 9),
    Sketcher.Constraint("Vertical", 11),
    Sketcher.Constraint("Horizontal", 13),
    Sketcher.Constraint("Vertical", 15),
    Sketcher.Constraint("Equal", 1, 3),
    Sketcher.Constraint("Equal", 3, 5),
    Sketcher.Constraint("Equal", 5, 7),
    Sketcher.Constraint("Equal", 7, 8),
    Sketcher.Constraint("Equal", 8, 10),
    Sketcher.Constraint("Equal", 10, 12),
    Sketcher.Constraint("Equal", 12, 14),
    Sketcher.Constraint("Equal", 14, 17),
    Sketcher.Constraint("Equal", 17, 19),
    Sketcher.Constraint("Equal", 19, 21),
    Sketcher.Constraint("Equal", 21, 23),
    Sketcher.Constraint("Equal", 23, 24),
    Sketcher.Constraint("Equal", 24, 26),
    Sketcher.Constraint("Equal", 26, 28),
    Sketcher.Constraint("Equal", 28, 30),
    Sketcher.Constraint("Equal", 30, 33),
    Sketcher.Constraint("Equal", 33, 35),
    Sketcher.Constraint("Equal", 35, 37),
    Sketcher.Constraint("Equal", 37, 39),
    Sketcher.Constraint("Equal", 39, 40),
    Sketcher.Constraint("Equal", 40, 42),
    Sketcher.Constraint("Equal", 42, 44),
    Sketcher.Constraint("Equal", 44, 46),
    Sketcher.Constraint("Equal", 46, 49),
    Sketcher.Constraint("Equal", 49, 51),
    Sketcher.Constraint("Equal", 51, 53),
    Sketcher.Constraint("Equal", 53, 55),
    Sketcher.Constraint("Equal", 55, 56),
    Sketcher.Constraint("Equal", 56, 58),
    Sketcher.Constraint("Equal", 58, 60),
    Sketcher.Constraint("Equal", 60, 62),
    Sketcher.Constraint("Symmetric", 1, 3, 8, 3, -2),
    Sketcher.Constraint("Symmetric", 5, 3, 12, 3, -2),
    Sketcher.Constraint("Symmetric", 35, 3, 40, 3, -2),
    Sketcher.Constraint("Symmetric", 33, 3, 42, 3, -2),
    Sketcher.Constraint("Symmetric", 39, 3, 44, 3, -2),
    Sketcher.Constraint("Symmetric", 37, 3, 46, 3, -2),
    Sketcher.Constraint("Symmetric", 26, 3, 49, 3, -2),
    Sketcher.Constraint("Symmetric", 24, 3, 51, 3, -2),
    Sketcher.Constraint("Symmetric", 30, 3, 53, 3, -2),
    Sketcher.Constraint("Symmetric", 28, 3, 55, 3, -2),
    Sketcher.Constraint("Symmetric", 19, 3, 56, 3, -2),
    Sketcher.Constraint("Symmetric", 17, 3, 58, 3, -2),
    Sketcher.Constraint("Symmetric", 23, 3, 60, 3, -2),
    Sketcher.Constraint("Symmetric", 21, 3, 62, 3, -2),
    Sketcher.Constraint("Perpendicular", 16, 18),
    Sketcher.Constraint("Perpendicular", 18, 20),
    Sketcher.Constraint("Perpendicular", 20, 22),
    Sketcher.Constraint("Parallel", 22, 25),
    Sketcher.Constraint("Perpendicular", 25, 27),
    Sketcher.Constraint("Perpendicular", 27, 29),
    Sketcher.Constraint("Perpendicular", 29, 31),
    Sketcher.Constraint("Perpendicular", 32, 34),
    Sketcher.Constraint("Perpendicular", 34, 36),
    Sketcher.Constraint("Perpendicular", 36, 38),
    Sketcher.Constraint("Equal", 22, 25),
    Sketcher.Constraint("Equal", 20, 27),
    Sketcher.Constraint("Equal", 31, 32),
    Sketcher.Constraint("Equal", 29, 34),
    Sketcher.Constraint("Radius", 1, Q("0.0525 in")),
    Sketcher.Constraint("DistanceX", 0, 2, 0, 1, Q("0.3937 in")),
    Sketcher.Constraint("Angle", 16, Q("108 deg")),
    Sketcher.Constraint("Angle", 32, Q("36 deg")),
    Sketcher.Constraint("Distance", 16, Q("0.3937 in")),
    Sketcher.Constraint("DistanceY", 24, 3, -1, 1, Q("1.236 in")),
    Sketcher.Constraint("DistanceX", 32, 2, -1, 1, Q("4.867 in")),
    Sketcher.Constraint("DistanceY", 2, 1, 2, 2, Q("3.8333 mm")),
    Sketcher.Constraint("DistanceY", 19, 3, -1, 1, Q("2.9771 in")),
    Sketcher.Constraint("DistanceX", 23, 3, -1, 1, Q("6.2223 in")),
    Sketcher.Constraint("DistanceY", 28, 3, -1, 1, Q("0.9082 in")),
    Sketcher.Constraint("DistanceX", 30, 3, -1, 1, Q("6.8878 in")),
    Sketcher.Constraint("DistanceY", -1, 1, 36, 2, Q("4.7031 in")),
    Sketcher.Constraint("DistanceX", -1, 1, 1, 3, Q("23.25 mm")),
    Sketcher.Constraint("DistanceY", 1, 3, -1, 1, Q("176.9833 mm")),
])
pocket2 = doc.addObject("PartDesign::Pocket", "Pocket001")
body.addObject(pocket2)
pocket2.Profile = sketch3
pocket2.Type = "ThroughAll"
pocket2.Reversed = True

doc.recompute()
